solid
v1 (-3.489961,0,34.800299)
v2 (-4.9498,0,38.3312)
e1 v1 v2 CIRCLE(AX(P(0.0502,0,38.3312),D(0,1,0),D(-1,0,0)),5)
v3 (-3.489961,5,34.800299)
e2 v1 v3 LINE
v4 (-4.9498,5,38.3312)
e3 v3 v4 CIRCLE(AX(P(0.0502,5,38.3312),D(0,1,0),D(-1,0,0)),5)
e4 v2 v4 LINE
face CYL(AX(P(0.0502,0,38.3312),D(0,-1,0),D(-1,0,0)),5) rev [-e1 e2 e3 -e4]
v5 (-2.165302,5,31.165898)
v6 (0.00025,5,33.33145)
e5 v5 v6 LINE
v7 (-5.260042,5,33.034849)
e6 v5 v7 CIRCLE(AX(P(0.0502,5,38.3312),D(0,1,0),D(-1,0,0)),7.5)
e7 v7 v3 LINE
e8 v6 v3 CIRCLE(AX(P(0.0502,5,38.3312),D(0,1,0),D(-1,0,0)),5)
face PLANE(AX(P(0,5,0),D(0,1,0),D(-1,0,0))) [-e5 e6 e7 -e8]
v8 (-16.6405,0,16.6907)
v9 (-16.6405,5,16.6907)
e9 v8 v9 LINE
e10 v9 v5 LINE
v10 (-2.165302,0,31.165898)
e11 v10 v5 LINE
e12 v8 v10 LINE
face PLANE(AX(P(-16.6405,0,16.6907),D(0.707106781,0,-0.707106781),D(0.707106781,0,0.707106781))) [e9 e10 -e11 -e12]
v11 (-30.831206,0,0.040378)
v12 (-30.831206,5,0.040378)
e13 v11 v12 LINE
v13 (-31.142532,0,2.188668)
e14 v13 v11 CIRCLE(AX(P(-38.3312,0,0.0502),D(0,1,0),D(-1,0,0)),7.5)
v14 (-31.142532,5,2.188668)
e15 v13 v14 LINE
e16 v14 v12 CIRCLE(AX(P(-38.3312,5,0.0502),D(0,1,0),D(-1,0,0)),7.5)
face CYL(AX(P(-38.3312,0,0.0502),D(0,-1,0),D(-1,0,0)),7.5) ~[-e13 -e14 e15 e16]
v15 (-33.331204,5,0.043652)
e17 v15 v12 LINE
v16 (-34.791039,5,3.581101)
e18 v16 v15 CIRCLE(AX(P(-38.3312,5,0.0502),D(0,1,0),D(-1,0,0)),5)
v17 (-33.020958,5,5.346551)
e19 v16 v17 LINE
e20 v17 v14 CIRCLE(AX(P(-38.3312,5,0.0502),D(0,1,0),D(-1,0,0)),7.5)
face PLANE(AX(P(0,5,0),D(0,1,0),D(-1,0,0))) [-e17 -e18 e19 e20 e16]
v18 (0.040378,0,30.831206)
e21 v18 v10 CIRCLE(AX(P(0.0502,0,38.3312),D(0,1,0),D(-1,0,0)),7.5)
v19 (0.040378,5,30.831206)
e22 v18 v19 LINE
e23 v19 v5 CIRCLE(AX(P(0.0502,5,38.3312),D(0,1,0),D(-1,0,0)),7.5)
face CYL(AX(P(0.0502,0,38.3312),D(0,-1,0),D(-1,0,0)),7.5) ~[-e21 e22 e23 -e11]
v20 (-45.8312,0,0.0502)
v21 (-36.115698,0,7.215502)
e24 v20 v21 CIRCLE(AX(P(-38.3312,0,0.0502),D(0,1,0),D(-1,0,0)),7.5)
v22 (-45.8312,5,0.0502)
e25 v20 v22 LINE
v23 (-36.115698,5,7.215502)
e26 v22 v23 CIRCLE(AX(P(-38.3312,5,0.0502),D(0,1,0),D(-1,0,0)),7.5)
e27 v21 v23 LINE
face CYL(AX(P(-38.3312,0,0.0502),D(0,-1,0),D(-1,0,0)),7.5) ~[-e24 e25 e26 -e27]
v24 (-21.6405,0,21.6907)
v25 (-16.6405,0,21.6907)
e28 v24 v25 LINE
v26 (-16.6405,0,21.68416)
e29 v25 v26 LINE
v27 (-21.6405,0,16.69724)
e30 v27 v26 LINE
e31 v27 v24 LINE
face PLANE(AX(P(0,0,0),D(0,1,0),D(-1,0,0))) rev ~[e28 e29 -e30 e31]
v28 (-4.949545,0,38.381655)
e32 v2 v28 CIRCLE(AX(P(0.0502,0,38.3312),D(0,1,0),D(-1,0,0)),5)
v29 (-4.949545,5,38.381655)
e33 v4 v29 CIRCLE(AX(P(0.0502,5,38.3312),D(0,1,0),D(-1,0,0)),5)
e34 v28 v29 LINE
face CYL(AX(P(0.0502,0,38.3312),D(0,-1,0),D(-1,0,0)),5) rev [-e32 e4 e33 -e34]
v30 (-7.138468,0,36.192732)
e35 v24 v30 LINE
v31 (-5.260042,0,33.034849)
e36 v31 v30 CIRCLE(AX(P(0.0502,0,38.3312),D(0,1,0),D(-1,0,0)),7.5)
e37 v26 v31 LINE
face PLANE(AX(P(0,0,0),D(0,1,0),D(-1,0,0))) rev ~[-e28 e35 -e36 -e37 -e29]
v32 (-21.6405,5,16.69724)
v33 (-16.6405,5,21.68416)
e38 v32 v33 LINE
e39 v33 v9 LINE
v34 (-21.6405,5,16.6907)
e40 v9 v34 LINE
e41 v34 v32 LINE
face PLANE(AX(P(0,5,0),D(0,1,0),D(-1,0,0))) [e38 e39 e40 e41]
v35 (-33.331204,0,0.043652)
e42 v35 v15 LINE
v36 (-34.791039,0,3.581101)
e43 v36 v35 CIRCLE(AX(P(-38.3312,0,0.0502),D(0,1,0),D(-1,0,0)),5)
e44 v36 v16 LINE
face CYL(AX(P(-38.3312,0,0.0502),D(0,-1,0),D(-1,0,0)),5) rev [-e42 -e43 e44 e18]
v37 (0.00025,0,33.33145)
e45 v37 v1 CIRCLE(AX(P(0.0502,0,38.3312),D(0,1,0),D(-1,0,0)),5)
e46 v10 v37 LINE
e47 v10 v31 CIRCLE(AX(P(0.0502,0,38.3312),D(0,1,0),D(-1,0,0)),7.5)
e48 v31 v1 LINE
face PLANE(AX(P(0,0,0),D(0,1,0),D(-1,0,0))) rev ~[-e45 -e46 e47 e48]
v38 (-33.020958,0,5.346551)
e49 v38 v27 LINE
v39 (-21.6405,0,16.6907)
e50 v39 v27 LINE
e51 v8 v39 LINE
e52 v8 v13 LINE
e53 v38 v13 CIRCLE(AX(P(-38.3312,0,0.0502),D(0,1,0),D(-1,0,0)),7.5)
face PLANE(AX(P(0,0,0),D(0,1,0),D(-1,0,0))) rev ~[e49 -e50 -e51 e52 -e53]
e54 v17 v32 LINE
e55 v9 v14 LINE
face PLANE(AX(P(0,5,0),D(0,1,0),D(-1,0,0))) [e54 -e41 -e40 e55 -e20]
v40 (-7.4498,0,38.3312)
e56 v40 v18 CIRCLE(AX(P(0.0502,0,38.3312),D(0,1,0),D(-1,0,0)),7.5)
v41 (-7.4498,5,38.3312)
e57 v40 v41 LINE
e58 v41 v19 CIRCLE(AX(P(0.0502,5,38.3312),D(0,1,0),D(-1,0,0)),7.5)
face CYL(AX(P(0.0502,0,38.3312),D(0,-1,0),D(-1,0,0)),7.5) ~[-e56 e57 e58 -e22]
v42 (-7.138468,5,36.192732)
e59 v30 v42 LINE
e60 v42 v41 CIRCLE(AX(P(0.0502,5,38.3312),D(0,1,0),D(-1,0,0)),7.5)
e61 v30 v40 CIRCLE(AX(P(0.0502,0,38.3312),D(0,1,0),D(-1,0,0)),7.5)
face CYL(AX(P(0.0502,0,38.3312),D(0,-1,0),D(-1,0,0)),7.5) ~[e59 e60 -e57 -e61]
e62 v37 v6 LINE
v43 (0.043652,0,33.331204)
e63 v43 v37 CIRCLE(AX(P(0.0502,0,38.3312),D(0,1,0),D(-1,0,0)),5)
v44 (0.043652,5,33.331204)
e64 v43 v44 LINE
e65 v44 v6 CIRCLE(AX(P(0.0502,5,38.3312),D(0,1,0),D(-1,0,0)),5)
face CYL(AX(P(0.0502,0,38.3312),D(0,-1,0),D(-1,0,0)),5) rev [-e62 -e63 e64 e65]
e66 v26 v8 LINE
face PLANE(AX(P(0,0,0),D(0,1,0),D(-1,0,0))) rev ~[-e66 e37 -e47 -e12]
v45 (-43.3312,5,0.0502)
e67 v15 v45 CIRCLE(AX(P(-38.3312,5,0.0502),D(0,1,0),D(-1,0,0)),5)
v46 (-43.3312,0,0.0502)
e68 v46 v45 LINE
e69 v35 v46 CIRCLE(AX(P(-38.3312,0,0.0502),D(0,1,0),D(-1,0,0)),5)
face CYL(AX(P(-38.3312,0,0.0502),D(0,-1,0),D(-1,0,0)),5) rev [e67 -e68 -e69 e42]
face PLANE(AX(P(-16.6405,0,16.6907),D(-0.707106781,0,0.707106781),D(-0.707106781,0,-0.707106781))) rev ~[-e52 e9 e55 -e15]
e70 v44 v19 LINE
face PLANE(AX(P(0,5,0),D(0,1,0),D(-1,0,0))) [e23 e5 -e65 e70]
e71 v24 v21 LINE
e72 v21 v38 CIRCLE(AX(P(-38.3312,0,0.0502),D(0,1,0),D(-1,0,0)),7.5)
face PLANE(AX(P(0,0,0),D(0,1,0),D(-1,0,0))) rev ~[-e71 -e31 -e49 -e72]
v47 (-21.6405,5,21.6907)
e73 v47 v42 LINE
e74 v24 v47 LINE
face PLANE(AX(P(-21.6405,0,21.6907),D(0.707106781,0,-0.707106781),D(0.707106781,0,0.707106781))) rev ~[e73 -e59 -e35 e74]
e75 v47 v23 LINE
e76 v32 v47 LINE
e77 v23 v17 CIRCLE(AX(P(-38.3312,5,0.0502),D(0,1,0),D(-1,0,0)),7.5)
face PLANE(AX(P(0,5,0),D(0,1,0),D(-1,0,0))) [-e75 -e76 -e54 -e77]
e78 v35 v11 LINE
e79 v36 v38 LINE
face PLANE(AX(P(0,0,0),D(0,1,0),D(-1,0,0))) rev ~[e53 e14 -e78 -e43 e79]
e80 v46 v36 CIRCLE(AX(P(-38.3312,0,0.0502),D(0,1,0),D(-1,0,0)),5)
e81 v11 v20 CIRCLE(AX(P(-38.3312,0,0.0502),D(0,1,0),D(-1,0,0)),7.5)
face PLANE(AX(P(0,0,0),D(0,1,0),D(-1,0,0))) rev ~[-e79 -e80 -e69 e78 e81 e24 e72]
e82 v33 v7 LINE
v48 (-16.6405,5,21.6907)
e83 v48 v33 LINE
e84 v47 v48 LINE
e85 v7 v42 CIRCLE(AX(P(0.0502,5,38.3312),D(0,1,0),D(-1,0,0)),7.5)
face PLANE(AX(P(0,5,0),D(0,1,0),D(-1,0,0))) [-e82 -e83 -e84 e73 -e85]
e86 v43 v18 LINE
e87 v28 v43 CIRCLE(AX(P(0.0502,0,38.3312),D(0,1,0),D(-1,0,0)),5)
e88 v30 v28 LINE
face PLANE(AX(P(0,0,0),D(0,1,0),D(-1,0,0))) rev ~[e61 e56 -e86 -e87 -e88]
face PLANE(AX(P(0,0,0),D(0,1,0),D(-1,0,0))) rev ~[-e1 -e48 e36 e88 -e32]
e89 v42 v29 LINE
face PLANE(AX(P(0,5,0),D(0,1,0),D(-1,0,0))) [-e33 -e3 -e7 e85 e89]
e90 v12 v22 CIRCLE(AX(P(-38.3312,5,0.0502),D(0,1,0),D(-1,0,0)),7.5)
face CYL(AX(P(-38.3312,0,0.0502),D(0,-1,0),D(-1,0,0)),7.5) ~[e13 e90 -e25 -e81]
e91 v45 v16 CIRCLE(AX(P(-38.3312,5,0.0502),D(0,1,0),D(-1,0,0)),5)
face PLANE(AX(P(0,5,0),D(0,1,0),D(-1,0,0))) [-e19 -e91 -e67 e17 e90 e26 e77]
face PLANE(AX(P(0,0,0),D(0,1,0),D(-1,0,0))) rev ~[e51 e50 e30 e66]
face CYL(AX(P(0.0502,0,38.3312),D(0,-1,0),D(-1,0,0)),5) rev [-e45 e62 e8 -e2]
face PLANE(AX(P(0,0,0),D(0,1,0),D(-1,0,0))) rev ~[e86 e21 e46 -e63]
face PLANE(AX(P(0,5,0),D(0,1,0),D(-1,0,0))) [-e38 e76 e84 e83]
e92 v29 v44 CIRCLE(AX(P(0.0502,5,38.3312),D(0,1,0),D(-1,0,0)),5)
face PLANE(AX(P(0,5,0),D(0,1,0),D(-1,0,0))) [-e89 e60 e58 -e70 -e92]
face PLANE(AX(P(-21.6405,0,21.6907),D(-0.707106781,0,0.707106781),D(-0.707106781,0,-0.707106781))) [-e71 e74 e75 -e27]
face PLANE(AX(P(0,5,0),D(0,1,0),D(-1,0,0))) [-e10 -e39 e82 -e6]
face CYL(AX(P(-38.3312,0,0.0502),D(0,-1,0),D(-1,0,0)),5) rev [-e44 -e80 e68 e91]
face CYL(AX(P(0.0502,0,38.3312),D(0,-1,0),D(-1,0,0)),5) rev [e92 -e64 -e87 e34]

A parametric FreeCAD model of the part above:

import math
import FreeCAD as App
import Part
import Sketcher

V = App.Vector
Q = App.Units.Quantity

doc = App.newDocument("Part")
params = doc.addObject("Spreadsheet::Sheet", "Params")
for row, (alias, value) in enumerate([
    ("sketch1_diameter", "10 mm"),
    ("sketch1_radius", "7.5 mm"),
    ("sketch1_length", "40.98 mm"),
    ("pad1_length", "5 mm"),
], start=1):
    params.set(f"A{row}", alias)
    params.set(f"B{row}", "=" + value)
    params.setAlias(f"B{row}", alias)

body = doc.addObject("PartDesign::Body", "Body")

# Sketch on XZ plane
sketch1 = doc.addObject("Sketcher::SketchObject", "Sketch")
body.addObject(sketch1)
sketch1.AttachmentSupport = (doc.XZ_Plane, [""])
sketch1.MapMode = "FlatFace"
sketch1.addGeometry(Part.LineSegment(V(-2, 31, 0), V(-31, 2, 0)), False)
sketch1.addGeometry(Part.ArcOfCircle(Part.Circle(V(-38, 0, 0), V(0, 0, 1), 8), math.radians(73), math.radians(377)), False)
sketch1.addGeometry(Part.LineSegment(V(-36, 7, 0), V(-7, 36, 0)), False)
sketch1.addGeometry(Part.ArcOfCircle(Part.Circle(V(0, 38, 0), V(0, 0, 1), 8), math.radians(-107), math.radians(197)), False)
sketch1.addGeometry(Part.Circle(V(0, 38, 0), V(0, 0, 1), 5), False)
sketch1.addGeometry(Part.Circle(V(-38, 0, 0), V(0, 0, 1), 5), False)
sketch1.addConstraint(Sketcher.Constraint("Coincident", 0, 2, 1, 2))
sketch1.addConstraint(Sketcher.Constraint("Coincident", 1, 1, 2, 1))
sketch1.addConstraint(Sketcher.Constraint("Coincident", 2, 2, 3, 2))
sketch1.addConstraint(Sketcher.Constraint("Coincident", 3, 1, 0, 1))
sketch1.addConstraint(Sketcher.Constraint("Coincident", 4, 3, 3, 3))
sketch1.addConstraint(Sketcher.Constraint("Coincident", 5, 3, 1, 3))
sketch1.addConstraint(Sketcher.Constraint("Equal", 1, 3))
sketch1.addConstraint(Sketcher.Constraint("Equal", 4, 5))
sketch1.addConstraint(Sketcher.Constraint("Parallel", 0, 2))
sketch1.addConstraint(Sketcher.Constraint("Equal", 0, 2))
sketch1.addConstraint(Sketcher.Constraint("Diameter", 4, 10.0))
sketch1.addConstraint(Sketcher.Constraint("Radius", 1, 7.5))
sketch1.addConstraint(Sketcher.Constraint("Angle", 0, Q("-135 deg")))
sketch1.addConstraint(Sketcher.Constraint("Distance", 0, 40.98))
sketch1.addConstraint(Sketcher.Constraint("DistanceY", -1, 1, 3, 1, 31.166))
sketch1.addConstraint(Sketcher.Constraint("DistanceY", 1, 3, 3, 3, 38.281))
sketch1.addConstraint(Sketcher.Constraint("DistanceX", 1, 1, 3, 3, 36.166))
sketch1.addConstraint(Sketcher.Constraint("DistanceX", 1, 3, -1, 1, 38.3312))
sketch1.setExpression("Constraints[10]", "Params.sketch1_diameter")
sketch1.setExpression("Constraints[11]", "Params.sketch1_radius")
sketch1.setExpression("Constraints[13]", "Params.sketch1_length")
pad1 = doc.addObject("PartDesign::Pad", "Pad")
body.addObject(pad1)
pad1.Profile = sketch1
pad1.setExpression("Length", "Params.pad1_length")
pad1.Reversed = True

doc.recompute()
